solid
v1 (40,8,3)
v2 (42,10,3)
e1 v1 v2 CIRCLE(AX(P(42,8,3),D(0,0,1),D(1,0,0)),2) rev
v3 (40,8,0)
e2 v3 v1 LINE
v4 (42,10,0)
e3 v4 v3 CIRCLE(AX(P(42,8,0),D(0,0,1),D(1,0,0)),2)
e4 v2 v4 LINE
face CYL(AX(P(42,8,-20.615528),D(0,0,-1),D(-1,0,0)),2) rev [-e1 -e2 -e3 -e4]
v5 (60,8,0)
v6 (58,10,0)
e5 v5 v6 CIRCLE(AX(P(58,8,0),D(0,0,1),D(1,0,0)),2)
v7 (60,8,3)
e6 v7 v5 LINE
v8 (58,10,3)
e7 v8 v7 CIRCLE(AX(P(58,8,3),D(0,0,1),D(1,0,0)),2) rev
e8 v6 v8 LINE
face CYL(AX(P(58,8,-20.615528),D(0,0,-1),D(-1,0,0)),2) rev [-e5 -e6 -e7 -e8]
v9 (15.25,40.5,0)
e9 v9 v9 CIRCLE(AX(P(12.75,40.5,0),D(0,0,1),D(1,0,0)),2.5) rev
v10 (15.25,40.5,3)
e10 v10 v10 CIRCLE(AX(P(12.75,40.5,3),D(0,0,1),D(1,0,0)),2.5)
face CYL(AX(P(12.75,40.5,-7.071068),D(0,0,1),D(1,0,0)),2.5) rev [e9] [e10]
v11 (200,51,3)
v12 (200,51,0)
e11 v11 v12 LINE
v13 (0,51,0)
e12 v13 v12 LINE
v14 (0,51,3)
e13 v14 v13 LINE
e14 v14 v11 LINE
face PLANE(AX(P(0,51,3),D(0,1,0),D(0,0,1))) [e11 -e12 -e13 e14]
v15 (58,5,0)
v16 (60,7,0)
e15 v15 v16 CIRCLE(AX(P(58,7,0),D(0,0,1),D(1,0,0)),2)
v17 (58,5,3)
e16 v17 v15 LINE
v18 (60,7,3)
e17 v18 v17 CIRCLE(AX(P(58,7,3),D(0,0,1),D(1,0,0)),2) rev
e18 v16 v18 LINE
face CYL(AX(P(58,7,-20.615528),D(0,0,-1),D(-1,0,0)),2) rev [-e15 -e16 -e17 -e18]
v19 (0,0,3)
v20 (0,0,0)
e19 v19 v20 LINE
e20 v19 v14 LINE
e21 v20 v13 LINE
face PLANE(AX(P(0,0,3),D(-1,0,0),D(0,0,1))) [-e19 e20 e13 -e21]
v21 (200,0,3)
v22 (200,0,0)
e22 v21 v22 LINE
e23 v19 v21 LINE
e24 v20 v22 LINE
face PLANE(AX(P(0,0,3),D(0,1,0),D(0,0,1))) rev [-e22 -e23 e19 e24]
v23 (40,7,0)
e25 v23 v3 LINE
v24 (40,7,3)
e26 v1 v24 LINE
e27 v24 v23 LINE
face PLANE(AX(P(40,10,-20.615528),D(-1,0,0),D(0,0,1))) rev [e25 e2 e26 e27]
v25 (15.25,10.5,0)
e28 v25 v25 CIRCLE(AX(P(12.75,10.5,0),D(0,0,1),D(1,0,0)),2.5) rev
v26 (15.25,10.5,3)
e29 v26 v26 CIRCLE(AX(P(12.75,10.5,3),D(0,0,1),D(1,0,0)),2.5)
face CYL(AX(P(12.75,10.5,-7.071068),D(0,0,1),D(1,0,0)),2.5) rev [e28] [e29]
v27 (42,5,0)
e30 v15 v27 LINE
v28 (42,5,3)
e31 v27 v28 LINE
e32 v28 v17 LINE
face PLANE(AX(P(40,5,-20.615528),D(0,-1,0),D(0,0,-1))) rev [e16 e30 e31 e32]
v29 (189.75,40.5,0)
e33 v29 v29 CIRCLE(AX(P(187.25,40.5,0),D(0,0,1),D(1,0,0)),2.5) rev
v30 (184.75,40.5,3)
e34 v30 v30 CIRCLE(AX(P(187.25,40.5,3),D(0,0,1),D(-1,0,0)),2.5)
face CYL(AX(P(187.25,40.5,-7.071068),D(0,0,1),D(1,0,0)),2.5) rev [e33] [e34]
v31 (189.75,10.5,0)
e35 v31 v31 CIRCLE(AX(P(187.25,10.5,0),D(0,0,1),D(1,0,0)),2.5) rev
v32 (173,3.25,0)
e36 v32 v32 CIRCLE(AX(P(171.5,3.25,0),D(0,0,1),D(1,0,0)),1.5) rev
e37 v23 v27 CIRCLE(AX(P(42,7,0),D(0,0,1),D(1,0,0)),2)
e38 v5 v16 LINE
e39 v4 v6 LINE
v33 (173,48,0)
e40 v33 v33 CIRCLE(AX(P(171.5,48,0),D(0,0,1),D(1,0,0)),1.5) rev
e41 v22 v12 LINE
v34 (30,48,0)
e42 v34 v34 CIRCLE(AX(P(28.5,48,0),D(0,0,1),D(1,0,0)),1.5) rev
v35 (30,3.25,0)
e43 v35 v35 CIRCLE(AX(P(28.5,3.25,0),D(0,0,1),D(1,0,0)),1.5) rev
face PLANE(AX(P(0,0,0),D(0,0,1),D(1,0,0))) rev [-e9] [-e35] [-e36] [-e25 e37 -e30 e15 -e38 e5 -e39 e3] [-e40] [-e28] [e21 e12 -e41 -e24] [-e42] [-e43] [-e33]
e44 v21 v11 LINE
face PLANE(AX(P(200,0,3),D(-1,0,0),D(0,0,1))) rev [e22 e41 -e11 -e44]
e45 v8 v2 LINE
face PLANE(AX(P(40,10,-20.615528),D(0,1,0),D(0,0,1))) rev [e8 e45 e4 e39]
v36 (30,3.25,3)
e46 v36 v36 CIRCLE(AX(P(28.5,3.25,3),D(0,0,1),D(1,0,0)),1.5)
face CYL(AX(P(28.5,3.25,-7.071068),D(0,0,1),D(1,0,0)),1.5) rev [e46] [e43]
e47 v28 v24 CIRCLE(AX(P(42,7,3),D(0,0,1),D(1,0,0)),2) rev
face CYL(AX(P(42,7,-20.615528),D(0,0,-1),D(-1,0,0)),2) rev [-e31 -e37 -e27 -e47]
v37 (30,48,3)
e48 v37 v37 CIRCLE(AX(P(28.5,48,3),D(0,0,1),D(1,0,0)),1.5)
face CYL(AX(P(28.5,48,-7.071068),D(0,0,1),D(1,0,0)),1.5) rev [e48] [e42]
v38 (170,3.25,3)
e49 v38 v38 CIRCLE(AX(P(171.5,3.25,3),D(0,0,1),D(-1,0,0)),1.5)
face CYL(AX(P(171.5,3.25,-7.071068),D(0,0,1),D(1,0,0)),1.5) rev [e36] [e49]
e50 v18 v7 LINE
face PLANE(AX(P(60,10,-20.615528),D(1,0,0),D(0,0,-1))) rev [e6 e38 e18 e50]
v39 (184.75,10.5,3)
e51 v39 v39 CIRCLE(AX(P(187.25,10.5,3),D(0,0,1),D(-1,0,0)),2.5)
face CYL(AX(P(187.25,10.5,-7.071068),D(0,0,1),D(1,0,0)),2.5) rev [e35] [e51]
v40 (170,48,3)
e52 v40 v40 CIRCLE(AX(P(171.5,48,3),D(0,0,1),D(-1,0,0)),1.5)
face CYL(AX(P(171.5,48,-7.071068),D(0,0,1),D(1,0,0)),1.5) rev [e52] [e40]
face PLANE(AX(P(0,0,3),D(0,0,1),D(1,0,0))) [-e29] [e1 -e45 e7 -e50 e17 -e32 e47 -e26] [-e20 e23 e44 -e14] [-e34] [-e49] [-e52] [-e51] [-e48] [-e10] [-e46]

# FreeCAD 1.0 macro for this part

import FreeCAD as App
import Part
import Sketcher

V = App.Vector


def edges_at(feature, points):
    """Names of the edges that pass closest to the given points."""
    edges = feature.Shape.Edges
    near = lambda p: min(range(len(edges)), key=lambda i: edges[i].distToShape(Part.Vertex(*p))[0])
    return sorted({f"Edge{near(p) + 1}" for p in points})

doc = App.newDocument("Part")
body = doc.addObject("PartDesign::Body", "Body")

# Sketch on XY plane
sketch1 = body.newObject("Sketcher::SketchObject", "Sketch")
sketch1.AttachmentSupport = (doc.getObject("XY_Plane"), [""])
sketch1.MapMode = "FlatFace"
sketch1.addGeometry(Part.LineSegment(V(0, 51, 0), V(0, 0, 0)), False)
sketch1.addGeometry(Part.LineSegment(V(0, 0, 0), V(200, 0, 0)), False)
sketch1.addGeometry(Part.LineSegment(V(200, 0, 0), V(200, 51, 0)), False)
sketch1.addGeometry(Part.LineSegment(V(200, 51, 0), V(0, 51, 0)), False)
sketch1.addConstraint(Sketcher.Constraint("Coincident", 0, 2, 1, 1))
sketch1.addConstraint(Sketcher.Constraint("Coincident", 1, 2, 2, 1))
sketch1.addConstraint(Sketcher.Constraint("Coincident", 2, 2, 3, 1))
sketch1.addConstraint(Sketcher.Constraint("Coincident", 3, 2, 0, 1))
sketch1.addConstraint(Sketcher.Constraint("Vertical", 0))
sketch1.addConstraint(Sketcher.Constraint("Horizontal", 1))
sketch1.addConstraint(Sketcher.Constraint("Vertical", 2))
sketch1.addConstraint(Sketcher.Constraint("Horizontal", 3))
sketch1.addConstraint(Sketcher.Constraint("Coincident", 0, 2, -1, 1))
sketch1.addConstraint(Sketcher.Constraint("DistanceX", 1, 1, 1, 2, 200.0))
sketch1.addConstraint(Sketcher.Constraint("DistanceY", 0, 2, 0, 1, 51.0))
pad1 = body.newObject("PartDesign::Pad", "Pad")
pad1.Profile = sketch1
pad1.Length = 3

# Sketch on XY plane
sketch2 = body.newObject("Sketcher::SketchObject", "Sketch001")
sketch2.AttachmentSupport = (doc.getObject("XY_Plane"), [""])
sketch2.MapMode = "FlatFace"
sketch2.AttachmentOffset = App.Placement(V(0, 0, 3), App.Rotation())
sketch2.addGeometry(Part.Circle(V(28.5, 48, 0), V(0, 0, 1), 1.5), False)
sketch2.addGeometry(Part.Circle(V(28.5, 3.2, 0), V(0, 0, 1), 1.5), False)
sketch2.addGeometry(Part.Circle(V(12.8, 40.5, 0), V(0, 0, 1), 2.5), False)
sketch2.addGeometry(Part.Circle(V(12.8, 10.5, 0), V(0, 0, 1), 2.5), False)
sketch2.addGeometry(Part.Circle(V(187.2, 40.5, 0), V(0, 0, 1), 2.5), False)
sketch2.addGeometry(Part.Circle(V(187.2, 10.5, 0), V(0, 0, 1), 2.5), False)
sketch2.addGeometry(Part.Circle(V(171.5, 3.2, 0), V(0, 0, 1), 1.5), False)
sketch2.addGeometry(Part.Circle(V(171.5, 48, 0), V(0, 0, 1), 1.5), False)
sketch2.addConstraint(Sketcher.Constraint("Equal", 0, 1))
sketch2.addConstraint(Sketcher.Constraint("Equal", 2, 3))
sketch2.addConstraint(Sketcher.Constraint("Equal", 3, 4))
sketch2.addConstraint(Sketcher.Constraint("Equal", 4, 5))
sketch2.addConstraint(Sketcher.Constraint("Equal", 1, 6))
sketch2.addConstraint(Sketcher.Constraint("Equal", 6, 7))
sketch2.addConstraint(Sketcher.Constraint("Horizontal", 2, 3, 4, 3))
sketch2.addConstraint(Sketcher.Constraint("Horizontal", 3, 3, 5, 3))
sketch2.addConstraint(Sketcher.Constraint("Horizontal", 1, 3, 6, 3))
sketch2.addConstraint(Sketcher.Constraint("Horizontal", 0, 3, 7, 3))
sketch2.addConstraint(Sketcher.Constraint("Vertical", 0, 3, 1, 3))
sketch2.addConstraint(Sketcher.Constraint("Vertical", 2, 3, 3, 3))
sketch2.addConstraint(Sketcher.Constraint("Vertical", 4, 3, 5, 3))
sketch2.addConstraint(Sketcher.Constraint("Vertical", 6, 3, 7, 3))
sketch2.addConstraint(Sketcher.Constraint("Diameter", 0, 3.0))
sketch2.addConstraint(Sketcher.Constraint("Diameter", 2, 5.0))
sketch2.addConstraint(Sketcher.Constraint("DistanceY", -1, 1, 0, 3, 48.0))
sketch2.addConstraint(Sketcher.Constraint("DistanceY", 3, 3, 2, 3, 30.0))
sketch2.addConstraint(Sketcher.Constraint("DistanceX", 1, 3, 6, 3, 143.0))
sketch2.addConstraint(Sketcher.Constraint("DistanceX", -1, 1, 0, 3, 28.5))
sketch2.addConstraint(Sketcher.Constraint("DistanceY", -1, 1, 2, 3, 40.5))
sketch2.addConstraint(Sketcher.Constraint("DistanceX", 2, 3, 4, 3, 174.5))
sketch2.addConstraint(Sketcher.Constraint("DistanceY", -1, 1, 1, 3, 3.25))
sketch2.addConstraint(Sketcher.Constraint("DistanceX", -1, 1, 2, 3, 12.75))
pocket1 = body.newObject("PartDesign::Pocket", "Pocket")
pocket1.Profile = sketch2
pocket1.Length = 3

# Sketch on XY plane
sketch3 = body.newObject("Sketcher::SketchObject", "Sketch002")
sketch3.AttachmentSupport = (doc.getObject("XY_Plane"), [""])
sketch3.MapMode = "FlatFace"
sketch3.AttachmentOffset = App.Placement(V(0, 0, 3), App.Rotation())
sketch3.addGeometry(Part.LineSegment(V(40, 10, 0), V(40, 5, 0)), False)
sketch3.addGeometry(Part.LineSegment(V(40, 5, 0), V(60, 5, 0)), False)
sketch3.addGeometry(Part.LineSegment(V(60, 5, 0), V(60, 10, 0)), False)
sketch3.addGeometry(Part.LineSegment(V(60, 10, 0), V(40, 10, 0)), False)
sketch3.addConstraint(Sketcher.Constraint("Coincident", 0, 2, 1, 1))
sketch3.addConstraint(Sketcher.Constraint("Coincident", 1, 2, 2, 1))
sketch3.addConstraint(Sketcher.Constraint("Coincident", 2, 2, 3, 1))
sketch3.addConstraint(Sketcher.Constraint("Coincident", 3, 2, 0, 1))
sketch3.addConstraint(Sketcher.Constraint("Vertical", 0))
sketch3.addConstraint(Sketcher.Constraint("Horizontal", 1))
sketch3.addConstraint(Sketcher.Constraint("Vertical", 2))
sketch3.addConstraint(Sketcher.Constraint("Horizontal", 3))
sketch3.addConstraint(Sketcher.Constraint("DistanceX", 1, 1, 1, 2, 20.0))
sketch3.addConstraint(Sketcher.Constraint("DistanceY", 0, 2, 0, 1, 5.0))
sketch3.addConstraint(Sketcher.Constraint("DistanceX", -1, 1, 0, 2, 40.0))
sketch3.addConstraint(Sketcher.Constraint("DistanceY", -1, 1, 0, 2, 5.0))
pocket2 = body.newObject("PartDesign::Pocket", "Pocket001")
pocket2.Profile = sketch3
pocket2.Length = 3
doc.recompute()

fillet = body.newObject("PartDesign::Fillet", "Fillet")
fillet.Base = (pocket2, edges_at(pocket2, [
    (40, 5, 1.5),
    (40, 10, 1.5),
    (60, 10, 1.5),
    (60, 5, 1.5),
]))
fillet.Radius = 2

doc.recompute()
